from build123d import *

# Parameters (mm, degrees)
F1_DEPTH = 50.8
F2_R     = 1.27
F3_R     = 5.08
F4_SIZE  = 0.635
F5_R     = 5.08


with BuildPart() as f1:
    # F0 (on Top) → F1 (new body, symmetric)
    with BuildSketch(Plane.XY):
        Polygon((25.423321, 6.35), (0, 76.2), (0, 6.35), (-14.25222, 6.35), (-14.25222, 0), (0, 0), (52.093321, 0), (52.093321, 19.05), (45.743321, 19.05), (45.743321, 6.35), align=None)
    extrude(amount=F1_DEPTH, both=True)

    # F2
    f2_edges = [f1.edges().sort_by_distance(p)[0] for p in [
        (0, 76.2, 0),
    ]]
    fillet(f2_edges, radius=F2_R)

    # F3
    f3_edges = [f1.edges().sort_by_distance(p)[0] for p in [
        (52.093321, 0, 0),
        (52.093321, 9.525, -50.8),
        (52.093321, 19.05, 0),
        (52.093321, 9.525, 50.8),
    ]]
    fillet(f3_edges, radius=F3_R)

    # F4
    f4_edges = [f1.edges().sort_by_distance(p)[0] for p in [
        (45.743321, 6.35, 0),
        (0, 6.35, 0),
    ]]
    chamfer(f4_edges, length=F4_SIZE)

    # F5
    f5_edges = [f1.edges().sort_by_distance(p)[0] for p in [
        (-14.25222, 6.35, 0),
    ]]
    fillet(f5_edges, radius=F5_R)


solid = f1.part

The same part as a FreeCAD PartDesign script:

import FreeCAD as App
import Part
import Sketcher
from FreeCAD import Vector
Q = App.Units.Quantity


def edges_at(feature, points):
    """Names of the edges that pass closest to the given points."""
    edges = feature.Shape.Edges
    near = lambda p: min(range(len(edges)), key=lambda i: edges[i].distToShape(Part.Vertex(*p))[0])
    return sorted({f"Edge{near(p) + 1}" for p in points})


def add_polygon(sketch, points):
    """Adds a closed chain of lines whose ends are joined by coincident constraints."""
    first, n = sketch.GeometryCount, len(points)
    for a, b in zip(points, points[1:] + points[:1]):
        sketch.addGeometry(Part.LineSegment(App.Vector(*a, 0), App.Vector(*b, 0)), False)
    for i in range(n):
        sketch.addConstraint(Sketcher.Constraint("Coincident", first + i, 2, first + (i + 1) % n, 1))

doc = App.newDocument("Part")
body = doc.addObject("PartDesign::Body", "Body")

# Sketch on XY plane
sketch1 = body.newObject("Sketcher::SketchObject", "Sketch")
sketch1.AttachmentSupport = (doc.getObject("XY_Plane"), [""])
sketch1.MapMode = "FlatFace"
add_polygon(sketch1, [(25, 6), (0, 76), (0, 6), (-14, 6), (-14, 0), (52, 0), (52, 19), (46, 19), (46, 6)])  # lines 0-8
sketch1.addConstraint(Sketcher.Constraint("Vertical", 1))
sketch1.addConstraint(Sketcher.Constraint("Horizontal", 2))
sketch1.addConstraint(Sketcher.Constraint("Vertical", 3))
sketch1.addConstraint(Sketcher.Constraint("Horizontal", 4))
sketch1.addConstraint(Sketcher.Constraint("Vertical", 5))
sketch1.addConstraint(Sketcher.Constraint("Horizontal", 6))
sketch1.addConstraint(Sketcher.Constraint("Vertical", 7))
sketch1.addConstraint(Sketcher.Constraint("Horizontal", 8))
sketch1.addConstraint(Sketcher.Constraint("PointOnObject", 0, 2, -2))
sketch1.addConstraint(Sketcher.Constraint("PointOnObject", 3, 2, -1))
sketch1.addConstraint(Sketcher.Constraint("Horizontal", 2, 2, 7, 2))
sketch1.addConstraint(Sketcher.Constraint("Equal", 6, 3))
sketch1.addConstraint(Sketcher.Constraint("DistanceX", 8, 2, 8, 1, Q("0.8 in")))
sketch1.addConstraint(Sketcher.Constraint("DistanceY", 7, 2, 7, 1, Q("0.5 in")))
sketch1.addConstraint(Sketcher.Constraint("DistanceY", -1, 1, 0, 2, Q("3 in")))
sketch1.addConstraint(Sketcher.Constraint("Angle", 0, Q("110 deg")))
sketch1.addConstraint(Sketcher.Constraint("DistanceX", 6, 2, 6, 1, Q("0.25 in")))
sketch1.addConstraint(Sketcher.Constraint("DistanceX", 2, 2, 2, 1, 14.25222))
pad1 = body.newObject("PartDesign::Pad", "Pad")
pad1.Profile = sketch1
pad1.Length = Q("4 in")
pad1.Midplane = True
doc.recompute()

fillet = body.newObject("PartDesign::Fillet", "Fillet")
fillet.Base = (pad1, edges_at(pad1, [(0, 76.2, 0)]))
fillet.Radius = Q("0.05 in")
doc.recompute()

fillet2 = body.newObject("PartDesign::Fillet", "Fillet001")
fillet2.Base = (fillet, edges_at(fillet, [
    (52.093, 0, 0),
    (52.093, 9.525, -50.8),
    (52.093, 19.05, 0),
    (52.093, 9.525, 50.8),
]))
fillet2.Radius = Q("0.2 in")
doc.recompute()

chamfer = body.newObject("PartDesign::Chamfer", "Chamfer")
chamfer.Base = (fillet2, edges_at(fillet2, [(45.743, 6.35, 0), (0, 6.35, 0)]))
chamfer.Size = Q("0.025 in")
doc.recompute()

fillet3 = body.newObject("PartDesign::Fillet", "Fillet002")
fillet3.Base = (chamfer, edges_at(chamfer, [(-14.252, 6.35, 0)]))
fillet3.Radius = Q("0.2 in")

doc.recompute()
